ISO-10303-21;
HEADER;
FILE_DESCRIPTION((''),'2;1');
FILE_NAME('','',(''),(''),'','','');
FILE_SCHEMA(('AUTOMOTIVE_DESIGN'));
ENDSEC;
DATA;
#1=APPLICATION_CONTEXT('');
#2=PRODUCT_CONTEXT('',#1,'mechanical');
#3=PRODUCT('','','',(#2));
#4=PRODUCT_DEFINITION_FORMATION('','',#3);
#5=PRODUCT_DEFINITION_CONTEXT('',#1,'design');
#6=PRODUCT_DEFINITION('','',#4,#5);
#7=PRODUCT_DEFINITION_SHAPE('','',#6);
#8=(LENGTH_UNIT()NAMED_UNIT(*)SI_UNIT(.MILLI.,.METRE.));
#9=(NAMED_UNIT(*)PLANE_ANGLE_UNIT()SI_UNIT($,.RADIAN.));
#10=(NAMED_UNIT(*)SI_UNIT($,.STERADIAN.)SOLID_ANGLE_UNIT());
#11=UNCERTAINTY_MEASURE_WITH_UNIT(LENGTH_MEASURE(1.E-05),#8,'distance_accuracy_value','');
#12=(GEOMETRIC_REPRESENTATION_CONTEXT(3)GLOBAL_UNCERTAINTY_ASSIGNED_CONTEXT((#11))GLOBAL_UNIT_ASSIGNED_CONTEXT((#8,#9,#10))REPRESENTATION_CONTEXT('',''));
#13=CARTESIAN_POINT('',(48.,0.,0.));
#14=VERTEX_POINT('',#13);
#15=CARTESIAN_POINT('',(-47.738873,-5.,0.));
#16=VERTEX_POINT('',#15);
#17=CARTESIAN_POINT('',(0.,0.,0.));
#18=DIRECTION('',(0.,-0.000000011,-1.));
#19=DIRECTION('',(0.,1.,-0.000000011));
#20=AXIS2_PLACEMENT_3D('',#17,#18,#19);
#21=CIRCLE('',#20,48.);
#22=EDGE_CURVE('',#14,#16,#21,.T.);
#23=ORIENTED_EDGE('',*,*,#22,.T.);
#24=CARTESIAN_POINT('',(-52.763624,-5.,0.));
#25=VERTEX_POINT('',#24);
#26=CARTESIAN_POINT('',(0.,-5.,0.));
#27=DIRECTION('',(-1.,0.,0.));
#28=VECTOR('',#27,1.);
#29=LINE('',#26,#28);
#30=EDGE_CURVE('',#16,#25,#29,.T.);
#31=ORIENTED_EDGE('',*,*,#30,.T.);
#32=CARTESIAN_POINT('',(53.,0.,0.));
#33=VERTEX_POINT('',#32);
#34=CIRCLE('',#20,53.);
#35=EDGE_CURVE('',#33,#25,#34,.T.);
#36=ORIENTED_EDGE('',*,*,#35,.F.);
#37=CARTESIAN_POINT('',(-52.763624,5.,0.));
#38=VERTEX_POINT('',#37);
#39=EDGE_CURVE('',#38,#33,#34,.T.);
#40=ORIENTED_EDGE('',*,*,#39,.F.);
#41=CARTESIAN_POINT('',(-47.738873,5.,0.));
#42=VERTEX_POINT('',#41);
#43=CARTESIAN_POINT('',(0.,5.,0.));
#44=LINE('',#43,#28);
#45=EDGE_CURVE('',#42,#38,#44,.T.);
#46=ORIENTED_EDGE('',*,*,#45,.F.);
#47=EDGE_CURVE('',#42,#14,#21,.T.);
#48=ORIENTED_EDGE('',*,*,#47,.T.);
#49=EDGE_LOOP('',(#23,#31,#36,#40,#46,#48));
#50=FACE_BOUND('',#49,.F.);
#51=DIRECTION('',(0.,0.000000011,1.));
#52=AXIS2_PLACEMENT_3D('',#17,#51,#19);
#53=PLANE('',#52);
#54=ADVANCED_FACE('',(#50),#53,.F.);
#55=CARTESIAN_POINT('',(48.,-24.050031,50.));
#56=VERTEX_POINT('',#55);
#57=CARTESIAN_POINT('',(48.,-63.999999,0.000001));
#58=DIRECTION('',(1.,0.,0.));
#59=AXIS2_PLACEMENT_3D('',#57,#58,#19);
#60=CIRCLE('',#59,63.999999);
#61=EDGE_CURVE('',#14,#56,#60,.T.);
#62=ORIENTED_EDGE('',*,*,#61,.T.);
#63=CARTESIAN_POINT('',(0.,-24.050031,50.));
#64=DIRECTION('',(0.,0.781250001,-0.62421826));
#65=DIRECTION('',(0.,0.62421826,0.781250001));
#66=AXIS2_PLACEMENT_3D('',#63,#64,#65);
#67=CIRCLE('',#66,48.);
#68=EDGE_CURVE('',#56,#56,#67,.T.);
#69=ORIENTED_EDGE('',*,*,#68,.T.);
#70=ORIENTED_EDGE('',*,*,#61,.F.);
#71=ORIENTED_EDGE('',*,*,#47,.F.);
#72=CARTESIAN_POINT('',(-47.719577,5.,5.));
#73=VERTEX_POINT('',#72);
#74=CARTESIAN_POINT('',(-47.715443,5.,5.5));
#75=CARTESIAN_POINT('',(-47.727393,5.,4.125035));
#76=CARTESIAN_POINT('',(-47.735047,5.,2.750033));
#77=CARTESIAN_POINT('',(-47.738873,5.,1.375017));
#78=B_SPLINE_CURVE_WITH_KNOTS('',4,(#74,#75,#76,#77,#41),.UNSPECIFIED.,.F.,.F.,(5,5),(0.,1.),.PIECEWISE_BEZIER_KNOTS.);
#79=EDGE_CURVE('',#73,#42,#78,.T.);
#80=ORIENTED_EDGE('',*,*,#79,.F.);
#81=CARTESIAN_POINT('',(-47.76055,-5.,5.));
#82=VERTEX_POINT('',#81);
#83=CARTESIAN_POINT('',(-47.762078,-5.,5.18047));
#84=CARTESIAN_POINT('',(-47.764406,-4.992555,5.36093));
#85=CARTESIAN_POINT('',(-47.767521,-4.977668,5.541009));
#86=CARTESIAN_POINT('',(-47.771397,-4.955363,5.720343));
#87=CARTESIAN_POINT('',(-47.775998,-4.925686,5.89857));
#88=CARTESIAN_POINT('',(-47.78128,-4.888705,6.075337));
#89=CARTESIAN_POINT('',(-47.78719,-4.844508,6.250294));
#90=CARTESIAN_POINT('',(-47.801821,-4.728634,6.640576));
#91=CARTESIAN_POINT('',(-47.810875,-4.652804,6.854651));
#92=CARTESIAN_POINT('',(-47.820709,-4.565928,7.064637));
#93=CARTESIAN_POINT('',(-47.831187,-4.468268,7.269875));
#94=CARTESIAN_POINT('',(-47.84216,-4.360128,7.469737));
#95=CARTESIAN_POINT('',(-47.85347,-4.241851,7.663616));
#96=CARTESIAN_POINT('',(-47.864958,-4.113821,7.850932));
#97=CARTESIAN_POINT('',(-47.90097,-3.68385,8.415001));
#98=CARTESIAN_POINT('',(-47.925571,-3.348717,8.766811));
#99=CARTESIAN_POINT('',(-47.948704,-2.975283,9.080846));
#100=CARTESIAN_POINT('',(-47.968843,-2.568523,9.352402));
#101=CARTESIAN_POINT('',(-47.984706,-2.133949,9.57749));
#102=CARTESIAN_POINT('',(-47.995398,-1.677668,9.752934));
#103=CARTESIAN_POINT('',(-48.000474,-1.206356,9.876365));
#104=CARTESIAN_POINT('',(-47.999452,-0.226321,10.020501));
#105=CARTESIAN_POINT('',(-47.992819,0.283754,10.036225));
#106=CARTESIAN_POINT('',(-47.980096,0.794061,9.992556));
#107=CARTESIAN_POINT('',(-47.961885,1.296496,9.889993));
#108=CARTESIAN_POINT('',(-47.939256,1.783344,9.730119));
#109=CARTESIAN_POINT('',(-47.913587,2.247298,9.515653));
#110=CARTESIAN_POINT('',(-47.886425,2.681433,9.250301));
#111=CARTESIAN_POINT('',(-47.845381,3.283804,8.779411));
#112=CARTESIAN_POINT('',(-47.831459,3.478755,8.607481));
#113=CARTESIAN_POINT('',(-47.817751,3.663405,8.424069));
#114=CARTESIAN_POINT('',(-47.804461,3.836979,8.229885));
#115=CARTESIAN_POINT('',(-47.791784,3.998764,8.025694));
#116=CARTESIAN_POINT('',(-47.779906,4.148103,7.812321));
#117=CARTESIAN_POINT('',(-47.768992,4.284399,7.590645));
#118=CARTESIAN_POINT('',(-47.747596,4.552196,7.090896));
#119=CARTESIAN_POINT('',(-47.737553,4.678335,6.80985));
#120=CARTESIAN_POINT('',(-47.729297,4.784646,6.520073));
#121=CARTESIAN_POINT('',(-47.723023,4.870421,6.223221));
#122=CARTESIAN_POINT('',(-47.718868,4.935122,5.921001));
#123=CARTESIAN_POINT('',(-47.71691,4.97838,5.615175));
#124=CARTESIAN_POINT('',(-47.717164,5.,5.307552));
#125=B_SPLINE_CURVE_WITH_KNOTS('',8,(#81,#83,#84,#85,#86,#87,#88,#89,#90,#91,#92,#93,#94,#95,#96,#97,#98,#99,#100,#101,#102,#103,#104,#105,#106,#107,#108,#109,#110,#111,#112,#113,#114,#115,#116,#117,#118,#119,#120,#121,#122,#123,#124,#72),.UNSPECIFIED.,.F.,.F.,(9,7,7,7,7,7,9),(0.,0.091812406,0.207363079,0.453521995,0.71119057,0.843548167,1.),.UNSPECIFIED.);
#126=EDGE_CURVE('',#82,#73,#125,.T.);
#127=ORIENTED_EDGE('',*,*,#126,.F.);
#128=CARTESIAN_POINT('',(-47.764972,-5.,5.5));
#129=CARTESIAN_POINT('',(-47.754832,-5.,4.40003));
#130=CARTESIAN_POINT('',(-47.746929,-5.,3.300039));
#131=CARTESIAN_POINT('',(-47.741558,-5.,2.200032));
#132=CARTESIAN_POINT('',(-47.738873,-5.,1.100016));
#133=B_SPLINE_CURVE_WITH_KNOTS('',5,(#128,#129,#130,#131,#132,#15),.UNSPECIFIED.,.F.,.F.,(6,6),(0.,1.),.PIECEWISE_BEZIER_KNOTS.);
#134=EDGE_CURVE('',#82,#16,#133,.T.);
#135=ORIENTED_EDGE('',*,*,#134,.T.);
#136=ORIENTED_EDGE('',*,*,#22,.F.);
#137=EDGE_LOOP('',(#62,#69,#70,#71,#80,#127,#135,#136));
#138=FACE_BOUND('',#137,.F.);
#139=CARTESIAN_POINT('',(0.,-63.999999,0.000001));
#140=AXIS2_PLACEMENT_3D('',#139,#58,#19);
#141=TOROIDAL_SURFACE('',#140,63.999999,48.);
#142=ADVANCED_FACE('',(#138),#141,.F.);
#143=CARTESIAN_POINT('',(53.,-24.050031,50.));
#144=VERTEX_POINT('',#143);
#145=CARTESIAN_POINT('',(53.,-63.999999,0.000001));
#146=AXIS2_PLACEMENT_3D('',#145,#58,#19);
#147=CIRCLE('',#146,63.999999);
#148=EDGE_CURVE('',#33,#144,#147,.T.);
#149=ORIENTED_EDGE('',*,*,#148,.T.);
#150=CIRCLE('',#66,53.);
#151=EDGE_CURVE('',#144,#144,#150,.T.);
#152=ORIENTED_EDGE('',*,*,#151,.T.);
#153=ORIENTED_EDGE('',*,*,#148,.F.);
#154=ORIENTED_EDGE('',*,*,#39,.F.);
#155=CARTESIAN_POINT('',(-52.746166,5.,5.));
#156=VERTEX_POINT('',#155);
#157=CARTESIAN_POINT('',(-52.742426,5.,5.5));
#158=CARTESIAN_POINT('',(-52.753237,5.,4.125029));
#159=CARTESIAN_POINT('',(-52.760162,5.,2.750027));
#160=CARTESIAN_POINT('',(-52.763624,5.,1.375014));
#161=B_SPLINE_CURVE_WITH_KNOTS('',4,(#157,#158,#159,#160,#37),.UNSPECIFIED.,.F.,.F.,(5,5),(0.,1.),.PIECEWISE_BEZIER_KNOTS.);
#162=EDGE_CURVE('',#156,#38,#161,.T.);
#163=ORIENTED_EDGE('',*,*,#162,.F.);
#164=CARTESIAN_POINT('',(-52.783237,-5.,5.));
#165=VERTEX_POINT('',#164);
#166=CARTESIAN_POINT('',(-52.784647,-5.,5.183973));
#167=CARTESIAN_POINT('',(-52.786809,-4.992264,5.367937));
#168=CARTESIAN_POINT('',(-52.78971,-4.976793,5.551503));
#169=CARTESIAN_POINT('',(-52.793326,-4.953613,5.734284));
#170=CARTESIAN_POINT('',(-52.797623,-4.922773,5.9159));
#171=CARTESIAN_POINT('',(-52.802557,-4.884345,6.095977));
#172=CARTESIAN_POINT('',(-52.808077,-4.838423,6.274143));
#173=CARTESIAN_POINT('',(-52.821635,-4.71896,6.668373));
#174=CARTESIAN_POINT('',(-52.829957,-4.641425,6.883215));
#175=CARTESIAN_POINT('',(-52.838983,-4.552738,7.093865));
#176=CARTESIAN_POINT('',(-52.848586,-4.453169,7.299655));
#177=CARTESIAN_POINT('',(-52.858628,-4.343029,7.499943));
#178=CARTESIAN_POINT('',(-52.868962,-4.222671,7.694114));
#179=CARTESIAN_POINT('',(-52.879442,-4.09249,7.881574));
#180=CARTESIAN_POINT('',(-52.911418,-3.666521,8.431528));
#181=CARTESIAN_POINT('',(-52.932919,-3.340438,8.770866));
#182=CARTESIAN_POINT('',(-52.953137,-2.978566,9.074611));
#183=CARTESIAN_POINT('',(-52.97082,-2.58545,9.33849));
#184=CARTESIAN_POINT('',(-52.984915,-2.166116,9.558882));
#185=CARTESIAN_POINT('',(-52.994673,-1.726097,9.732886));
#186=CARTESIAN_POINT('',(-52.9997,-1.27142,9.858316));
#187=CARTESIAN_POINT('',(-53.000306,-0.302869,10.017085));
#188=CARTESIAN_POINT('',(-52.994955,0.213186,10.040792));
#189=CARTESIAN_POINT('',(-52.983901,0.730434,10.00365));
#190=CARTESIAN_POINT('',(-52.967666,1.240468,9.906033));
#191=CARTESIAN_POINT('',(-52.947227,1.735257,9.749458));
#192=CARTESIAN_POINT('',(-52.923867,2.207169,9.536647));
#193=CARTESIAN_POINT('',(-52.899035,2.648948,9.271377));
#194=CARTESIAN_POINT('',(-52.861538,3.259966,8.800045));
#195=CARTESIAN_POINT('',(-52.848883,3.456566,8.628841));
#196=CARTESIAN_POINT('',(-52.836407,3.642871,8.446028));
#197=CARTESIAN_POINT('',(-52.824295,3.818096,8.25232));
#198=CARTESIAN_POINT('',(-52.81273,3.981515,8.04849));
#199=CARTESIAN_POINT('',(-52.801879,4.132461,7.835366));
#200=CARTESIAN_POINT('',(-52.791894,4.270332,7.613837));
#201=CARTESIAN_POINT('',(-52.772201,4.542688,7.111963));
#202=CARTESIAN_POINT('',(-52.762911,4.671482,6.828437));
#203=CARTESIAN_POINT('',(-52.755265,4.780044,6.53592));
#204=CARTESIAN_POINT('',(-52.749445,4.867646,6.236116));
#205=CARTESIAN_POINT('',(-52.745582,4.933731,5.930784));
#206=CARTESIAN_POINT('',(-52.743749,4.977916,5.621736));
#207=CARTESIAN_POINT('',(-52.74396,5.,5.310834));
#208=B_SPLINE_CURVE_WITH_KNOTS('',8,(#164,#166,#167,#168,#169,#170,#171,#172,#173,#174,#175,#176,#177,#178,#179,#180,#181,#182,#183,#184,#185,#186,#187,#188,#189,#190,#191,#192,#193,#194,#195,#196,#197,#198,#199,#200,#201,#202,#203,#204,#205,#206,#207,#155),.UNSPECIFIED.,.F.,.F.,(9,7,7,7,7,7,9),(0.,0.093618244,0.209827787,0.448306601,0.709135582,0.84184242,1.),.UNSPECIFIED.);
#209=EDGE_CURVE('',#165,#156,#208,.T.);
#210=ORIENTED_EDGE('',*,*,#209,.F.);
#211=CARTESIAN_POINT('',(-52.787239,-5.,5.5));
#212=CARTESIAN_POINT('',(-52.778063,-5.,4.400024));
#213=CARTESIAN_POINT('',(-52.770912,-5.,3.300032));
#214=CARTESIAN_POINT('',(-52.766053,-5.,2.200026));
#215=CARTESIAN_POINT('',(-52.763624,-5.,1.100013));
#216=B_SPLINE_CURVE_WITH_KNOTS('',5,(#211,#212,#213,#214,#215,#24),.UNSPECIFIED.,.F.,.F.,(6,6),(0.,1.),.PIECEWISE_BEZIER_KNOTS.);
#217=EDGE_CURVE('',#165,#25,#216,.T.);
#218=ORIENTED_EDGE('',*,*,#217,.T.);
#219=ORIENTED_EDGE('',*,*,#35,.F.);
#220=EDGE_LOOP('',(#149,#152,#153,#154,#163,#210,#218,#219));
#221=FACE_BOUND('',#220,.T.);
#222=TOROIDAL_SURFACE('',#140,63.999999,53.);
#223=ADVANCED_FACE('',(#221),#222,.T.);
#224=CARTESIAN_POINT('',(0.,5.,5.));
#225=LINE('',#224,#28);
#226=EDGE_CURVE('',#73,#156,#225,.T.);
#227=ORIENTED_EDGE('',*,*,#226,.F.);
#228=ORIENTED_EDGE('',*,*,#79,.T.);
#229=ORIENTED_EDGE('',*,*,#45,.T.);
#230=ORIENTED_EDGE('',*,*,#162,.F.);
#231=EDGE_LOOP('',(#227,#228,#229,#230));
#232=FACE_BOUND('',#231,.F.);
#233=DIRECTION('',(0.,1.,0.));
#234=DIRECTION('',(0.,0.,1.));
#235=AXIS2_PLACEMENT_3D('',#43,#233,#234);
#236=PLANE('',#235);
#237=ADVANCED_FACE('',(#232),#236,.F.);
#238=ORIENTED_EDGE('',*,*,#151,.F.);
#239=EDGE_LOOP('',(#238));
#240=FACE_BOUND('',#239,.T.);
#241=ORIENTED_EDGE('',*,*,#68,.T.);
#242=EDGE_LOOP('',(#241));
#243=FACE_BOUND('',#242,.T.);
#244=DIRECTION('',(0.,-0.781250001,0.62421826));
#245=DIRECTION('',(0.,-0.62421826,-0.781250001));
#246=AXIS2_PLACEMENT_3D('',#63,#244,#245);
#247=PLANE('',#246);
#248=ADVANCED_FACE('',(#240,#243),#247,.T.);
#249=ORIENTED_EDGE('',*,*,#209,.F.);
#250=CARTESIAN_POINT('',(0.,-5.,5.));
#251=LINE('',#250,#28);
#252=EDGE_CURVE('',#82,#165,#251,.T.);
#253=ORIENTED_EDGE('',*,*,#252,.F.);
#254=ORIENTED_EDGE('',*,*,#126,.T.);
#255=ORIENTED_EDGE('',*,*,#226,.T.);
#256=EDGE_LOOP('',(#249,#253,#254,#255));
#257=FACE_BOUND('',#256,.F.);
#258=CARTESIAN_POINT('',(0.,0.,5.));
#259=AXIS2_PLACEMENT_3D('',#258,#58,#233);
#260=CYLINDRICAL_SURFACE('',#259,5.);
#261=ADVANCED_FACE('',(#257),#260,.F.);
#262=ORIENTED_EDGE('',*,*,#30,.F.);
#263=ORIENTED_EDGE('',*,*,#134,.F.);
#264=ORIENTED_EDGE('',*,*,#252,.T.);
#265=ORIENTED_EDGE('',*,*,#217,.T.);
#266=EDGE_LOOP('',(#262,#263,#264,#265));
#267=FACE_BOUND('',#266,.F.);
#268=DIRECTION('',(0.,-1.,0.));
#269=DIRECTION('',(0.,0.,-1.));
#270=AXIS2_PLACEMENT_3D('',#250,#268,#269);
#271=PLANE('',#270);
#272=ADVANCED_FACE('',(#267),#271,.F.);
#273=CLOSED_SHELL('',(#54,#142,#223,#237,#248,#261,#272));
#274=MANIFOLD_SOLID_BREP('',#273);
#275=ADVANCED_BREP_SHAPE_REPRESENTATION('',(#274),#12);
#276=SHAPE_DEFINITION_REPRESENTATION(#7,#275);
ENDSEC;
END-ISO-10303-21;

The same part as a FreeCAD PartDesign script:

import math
import FreeCAD as App
import Part
import Sketcher

V = App.Vector
Q = App.Units.Quantity

doc = App.newDocument("Part")
body = doc.addObject("PartDesign::Body", "Body")

sketch1 = doc.addObject("Sketcher::SketchObject", "Sketch")
body.addObject(sketch1)
sketch1.AttachmentSupport = (doc.XY_Plane, [""])
sketch1.MapMode = "FlatFace"
sketch1.addGeometry([
    Part.Circle(V(0, 0, 0), V(0, 0, 1), 53),
    Part.Circle(V(0, 0, 0), V(0, 0, 1), 48),
], False)
sketch1.addConstraint([
    Sketcher.Constraint("Coincident", 0, 3, -1, 1),
    Sketcher.Constraint("Coincident", 1, 3, -1, 1),
    Sketcher.Constraint("Diameter", 0, Q("106 mm")),
    Sketcher.Constraint("Diameter", 1, Q("96 mm")),
])

sketch2 = doc.addObject("Sketcher::SketchObject", "Sketch001")
body.addObject(sketch2)
sketch2.AttachmentSupport = (doc.YZ_Plane, [""])
sketch2.MapMode = "FlatFace"
sketch2.addGeometry(Part.ArcOfCircle(Part.Circle(V(-63.999999, 0.000001, 0), V(0, 0, 1), 63.999999), math.radians(-0.000001), math.radians(51.375167)), False)
sketch2.addConstraint([
    Sketcher.Constraint("Coincident", 0, 1, -1, 1),
    Sketcher.Constraint("PointOnObject", 0, 3, -1),
    Sketcher.Constraint("Radius", 0, Q("63.999999 mm")),
    Sketcher.Constraint("DistanceY", -1, 1, 0, 2, Q("50 mm")),
])
doc.recompute()

additivepipe = doc.addObject("PartDesign::AdditivePipe", "AdditivePipe")
body.addObject(additivepipe)
additivepipe.Profile = sketch1
additivepipe.Spine = (sketch2, ["Edge1"])

sketch3 = doc.addObject("Sketcher::SketchObject", "Sketch002")
body.addObject(sketch3)
sketch3.AttachmentSupport = (doc.YZ_Plane, [""])
sketch3.MapMode = "FlatFace"
sketch3.addGeometry([
    Part.LineSegment(V(-5, 5, 0), V(-5, 0, 0)),
    Part.ArcOfCircle(Part.Circle(V(0, 0, 0), V(0, 0, 1), 5), math.radians(180), math.radians(360)),
    Part.LineSegment(V(5, 0, 0), V(5, 5, 0)),
    Part.ArcOfCircle(Part.Circle(V(0, 5, 0), V(0, 0, 1), 5), math.radians(0), math.radians(180)),
], False)
sketch3.addConstraint([
    Sketcher.Constraint("Tangent", 0, 2, 1, 1),
    Sketcher.Constraint("Tangent", 1, 2, 2, 1),
    Sketcher.Constraint("Tangent", 2, 2, 3, 1),
    Sketcher.Constraint("Tangent", 3, 2, 0, 1),
    Sketcher.Constraint("Vertical", 0),
    Sketcher.Constraint("Vertical", 2),
    Sketcher.Constraint("Coincident", 1, 3, -1, 1),
    Sketcher.Constraint("Radius", 1, Q("5 mm")),
    Sketcher.Constraint("DistanceY", 0, 2, 0, 1, Q("5 mm")),
])
pocket1 = doc.addObject("PartDesign::Pocket", "Pocket")
body.addObject(pocket1)
pocket1.Profile = sketch3
pocket1.Type = "ThroughAll"

doc.recompute()
